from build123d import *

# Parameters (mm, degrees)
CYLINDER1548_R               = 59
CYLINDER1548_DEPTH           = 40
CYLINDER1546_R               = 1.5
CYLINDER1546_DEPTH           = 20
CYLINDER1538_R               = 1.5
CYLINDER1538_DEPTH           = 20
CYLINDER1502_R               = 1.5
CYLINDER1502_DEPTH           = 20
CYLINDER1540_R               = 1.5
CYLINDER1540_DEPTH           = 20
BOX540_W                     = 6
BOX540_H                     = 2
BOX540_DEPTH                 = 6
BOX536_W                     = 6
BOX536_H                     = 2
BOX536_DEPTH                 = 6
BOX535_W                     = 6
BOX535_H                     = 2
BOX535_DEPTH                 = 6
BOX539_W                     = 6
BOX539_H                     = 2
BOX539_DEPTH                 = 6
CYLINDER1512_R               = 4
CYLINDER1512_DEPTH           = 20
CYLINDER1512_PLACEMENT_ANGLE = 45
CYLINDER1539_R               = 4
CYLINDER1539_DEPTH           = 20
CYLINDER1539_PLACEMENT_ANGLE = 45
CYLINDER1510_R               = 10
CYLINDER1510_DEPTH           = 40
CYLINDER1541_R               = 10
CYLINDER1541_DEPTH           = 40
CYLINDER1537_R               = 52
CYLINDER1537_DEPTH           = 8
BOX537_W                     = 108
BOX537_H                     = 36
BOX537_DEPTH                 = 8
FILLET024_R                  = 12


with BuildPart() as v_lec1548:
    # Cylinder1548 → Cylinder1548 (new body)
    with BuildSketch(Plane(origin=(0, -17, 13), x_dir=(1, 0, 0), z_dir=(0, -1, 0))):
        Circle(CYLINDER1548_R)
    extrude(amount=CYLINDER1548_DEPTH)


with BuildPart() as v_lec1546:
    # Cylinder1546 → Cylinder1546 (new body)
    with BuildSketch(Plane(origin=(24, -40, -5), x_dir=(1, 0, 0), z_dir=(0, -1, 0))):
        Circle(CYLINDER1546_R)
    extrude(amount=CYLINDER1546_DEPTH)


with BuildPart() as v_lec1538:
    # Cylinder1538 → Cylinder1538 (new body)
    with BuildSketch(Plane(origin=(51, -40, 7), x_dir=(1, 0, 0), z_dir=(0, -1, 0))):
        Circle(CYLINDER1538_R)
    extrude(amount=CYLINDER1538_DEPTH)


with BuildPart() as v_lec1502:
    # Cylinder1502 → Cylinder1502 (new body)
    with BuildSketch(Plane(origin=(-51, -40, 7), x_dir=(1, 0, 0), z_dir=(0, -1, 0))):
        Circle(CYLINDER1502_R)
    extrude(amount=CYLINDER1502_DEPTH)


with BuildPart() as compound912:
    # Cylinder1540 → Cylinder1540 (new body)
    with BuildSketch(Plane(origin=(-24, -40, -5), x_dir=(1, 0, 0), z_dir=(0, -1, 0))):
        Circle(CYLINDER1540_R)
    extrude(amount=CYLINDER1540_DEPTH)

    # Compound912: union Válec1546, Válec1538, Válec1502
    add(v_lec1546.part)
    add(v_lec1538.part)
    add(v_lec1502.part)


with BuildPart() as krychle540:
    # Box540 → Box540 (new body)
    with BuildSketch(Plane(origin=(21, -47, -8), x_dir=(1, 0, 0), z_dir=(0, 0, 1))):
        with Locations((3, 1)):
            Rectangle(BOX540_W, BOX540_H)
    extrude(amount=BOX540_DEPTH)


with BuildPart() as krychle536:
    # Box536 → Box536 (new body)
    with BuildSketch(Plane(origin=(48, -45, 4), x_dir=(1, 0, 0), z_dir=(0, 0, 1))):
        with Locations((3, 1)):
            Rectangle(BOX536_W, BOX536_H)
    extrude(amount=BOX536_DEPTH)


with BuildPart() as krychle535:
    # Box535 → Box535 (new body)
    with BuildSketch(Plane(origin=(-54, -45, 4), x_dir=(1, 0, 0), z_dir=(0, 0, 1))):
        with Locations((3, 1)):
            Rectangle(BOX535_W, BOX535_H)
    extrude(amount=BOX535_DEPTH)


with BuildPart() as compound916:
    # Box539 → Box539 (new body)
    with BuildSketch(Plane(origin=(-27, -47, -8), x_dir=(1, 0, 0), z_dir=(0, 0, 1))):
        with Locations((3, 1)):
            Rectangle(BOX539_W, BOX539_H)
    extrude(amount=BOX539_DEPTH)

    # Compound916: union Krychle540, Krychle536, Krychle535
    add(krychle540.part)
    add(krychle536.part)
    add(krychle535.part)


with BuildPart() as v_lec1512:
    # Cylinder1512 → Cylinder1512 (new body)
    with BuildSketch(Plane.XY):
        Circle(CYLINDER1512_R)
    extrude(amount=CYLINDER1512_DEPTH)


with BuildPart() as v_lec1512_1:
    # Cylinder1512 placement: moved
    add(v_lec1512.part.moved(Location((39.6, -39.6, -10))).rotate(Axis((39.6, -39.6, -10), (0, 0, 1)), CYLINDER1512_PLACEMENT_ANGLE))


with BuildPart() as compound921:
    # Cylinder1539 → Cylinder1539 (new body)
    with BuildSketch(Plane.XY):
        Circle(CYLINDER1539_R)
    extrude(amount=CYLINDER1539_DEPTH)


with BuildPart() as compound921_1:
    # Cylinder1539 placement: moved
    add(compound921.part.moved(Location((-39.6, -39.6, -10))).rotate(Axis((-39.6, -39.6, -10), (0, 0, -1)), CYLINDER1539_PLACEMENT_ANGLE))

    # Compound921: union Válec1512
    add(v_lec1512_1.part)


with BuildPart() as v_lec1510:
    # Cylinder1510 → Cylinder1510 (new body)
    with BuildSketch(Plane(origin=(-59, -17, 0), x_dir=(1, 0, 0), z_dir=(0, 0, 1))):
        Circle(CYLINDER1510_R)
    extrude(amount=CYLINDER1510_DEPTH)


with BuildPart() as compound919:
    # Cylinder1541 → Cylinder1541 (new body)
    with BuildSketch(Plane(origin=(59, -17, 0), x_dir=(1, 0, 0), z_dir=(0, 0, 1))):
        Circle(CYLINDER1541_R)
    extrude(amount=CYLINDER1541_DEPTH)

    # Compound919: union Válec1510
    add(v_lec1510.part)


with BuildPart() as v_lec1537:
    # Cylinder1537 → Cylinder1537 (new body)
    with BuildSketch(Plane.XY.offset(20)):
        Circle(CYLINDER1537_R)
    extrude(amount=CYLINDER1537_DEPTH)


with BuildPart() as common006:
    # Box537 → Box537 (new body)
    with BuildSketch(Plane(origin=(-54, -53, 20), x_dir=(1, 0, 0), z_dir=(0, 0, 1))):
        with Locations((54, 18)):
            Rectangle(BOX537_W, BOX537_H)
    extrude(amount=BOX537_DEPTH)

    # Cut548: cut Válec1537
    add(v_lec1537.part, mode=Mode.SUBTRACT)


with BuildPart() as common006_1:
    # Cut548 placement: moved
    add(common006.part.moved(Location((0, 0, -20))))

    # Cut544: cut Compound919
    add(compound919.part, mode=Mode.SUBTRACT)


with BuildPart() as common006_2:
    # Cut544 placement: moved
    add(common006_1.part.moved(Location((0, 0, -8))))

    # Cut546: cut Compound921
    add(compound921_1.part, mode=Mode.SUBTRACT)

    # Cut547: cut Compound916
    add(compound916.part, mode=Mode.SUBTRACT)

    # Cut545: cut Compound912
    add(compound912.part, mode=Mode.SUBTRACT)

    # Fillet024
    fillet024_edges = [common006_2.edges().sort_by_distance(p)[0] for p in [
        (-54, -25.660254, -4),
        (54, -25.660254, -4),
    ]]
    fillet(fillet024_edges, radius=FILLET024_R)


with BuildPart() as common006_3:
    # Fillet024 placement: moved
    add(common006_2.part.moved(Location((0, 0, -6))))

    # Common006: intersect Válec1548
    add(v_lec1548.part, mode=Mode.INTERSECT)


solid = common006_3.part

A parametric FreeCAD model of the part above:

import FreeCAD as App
import Part
import Sketcher
from FreeCAD import Vector
Q = App.Units.Quantity


def edges_at(feature, points):
    """Names of the edges that pass closest to the given points."""
    edges = feature.Shape.Edges
    near = lambda p: min(range(len(edges)), key=lambda i: edges[i].distToShape(Part.Vertex(*p))[0])
    return sorted({f"Edge{near(p) + 1}" for p in points})

doc = App.newDocument("Part")
body = doc.addObject("PartDesign::Body", "Body")

sketch1 = body.newObject("Sketcher::SketchObject", "Sketch")
sketch1.AttachmentSupport = (doc.getObject("XZ_Plane"), [""])
sketch1.MapMode = "FlatFace"
sketch1.AttachmentOffset = App.Placement(Vector(0, 0, 17), App.Rotation())
sketch1.addGeometry(Part.Circle(Vector(0, 13, 0), Vector(0, 0, 1), 59), False)
sketch1.addConstraint([
    Sketcher.Constraint("PointOnObject", 0, 3, -2),
    Sketcher.Constraint("Diameter", 0, Q("118 mm")),
    Sketcher.Constraint("DistanceY", -1, 1, 0, 3, Q("13 mm")),
])
pad1 = body.newObject("PartDesign::Pad", "Pad")
pad1.Profile = sketch1
pad1.Length = 40
body2 = doc.addObject("PartDesign::Body", "Body001")

sketch2 = body2.newObject("Sketcher::SketchObject", "Sketch001")
sketch2.AttachmentSupport = (doc.getObject("XZ_Plane001"), [""])
sketch2.MapMode = "FlatFace"
sketch2.AttachmentOffset = App.Placement(Vector(0, 0, 40), App.Rotation())
sketch2.addGeometry(Part.Circle(Vector(24, -5, 0), Vector(0, 0, 1), 1.5), False)
sketch2.addConstraint([
    Sketcher.Constraint("Diameter", 0, Q("3 mm")),
    Sketcher.Constraint("DistanceX", -1, 1, 0, 3, Q("24 mm")),
    Sketcher.Constraint("DistanceY", 0, 3, -1, 1, Q("5 mm")),
])
pad2 = body2.newObject("PartDesign::Pad", "Pad001")
pad2.Profile = sketch2
pad2.Length = 20
body3 = doc.addObject("PartDesign::Body", "Body002")

sketch3 = body3.newObject("Sketcher::SketchObject", "Sketch002")
sketch3.AttachmentSupport = (doc.getObject("XZ_Plane002"), [""])
sketch3.MapMode = "FlatFace"
sketch3.AttachmentOffset = App.Placement(Vector(0, 0, 40), App.Rotation())
sketch3.addGeometry(Part.Circle(Vector(51, 7, 0), Vector(0, 0, 1), 1.5), False)
sketch3.addConstraint([
    Sketcher.Constraint("Diameter", 0, Q("3 mm")),
    Sketcher.Constraint("DistanceX", -1, 1, 0, 3, Q("51 mm")),
    Sketcher.Constraint("DistanceY", -1, 1, 0, 3, Q("7 mm")),
])
pad3 = body3.newObject("PartDesign::Pad", "Pad002")
pad3.Profile = sketch3
pad3.Length = 20
body4 = doc.addObject("PartDesign::Body", "Body003")

sketch4 = body4.newObject("Sketcher::SketchObject", "Sketch003")
sketch4.AttachmentSupport = (doc.getObject("XZ_Plane003"), [""])
sketch4.MapMode = "FlatFace"
sketch4.AttachmentOffset = App.Placement(Vector(0, 0, 40), App.Rotation())
sketch4.addGeometry(Part.Circle(Vector(-51, 7, 0), Vector(0, 0, 1), 1.5), False)
sketch4.addConstraint([
    Sketcher.Constraint("Diameter", 0, Q("3 mm")),
    Sketcher.Constraint("DistanceX", 0, 3, -1, 1, Q("51 mm")),
    Sketcher.Constraint("DistanceY", -1, 1, 0, 3, Q("7 mm")),
])
pad4 = body4.newObject("PartDesign::Pad", "Pad003")
pad4.Profile = sketch4
pad4.Length = 20
body5 = doc.addObject("PartDesign::Body", "Body004")
body5.AllowCompound = True

sketch5 = body5.newObject("Sketcher::SketchObject", "Sketch004")
sketch5.AttachmentSupport = (doc.getObject("XZ_Plane004"), [""])
sketch5.MapMode = "FlatFace"
sketch5.AttachmentOffset = App.Placement(Vector(0, 0, 40), App.Rotation())
sketch5.addGeometry(Part.Circle(Vector(-24, -5, 0), Vector(0, 0, 1), 1.5), False)
sketch5.addConstraint([
    Sketcher.Constraint("Diameter", 0, Q("3 mm")),
    Sketcher.Constraint("DistanceX", 0, 3, -1, 1, Q("24 mm")),
    Sketcher.Constraint("DistanceY", 0, 3, -1, 1, Q("5 mm")),
])
pad5 = body5.newObject("PartDesign::Pad", "Pad004")
pad5.Profile = sketch5
pad5.Length = 20
doc.recompute()

boolean = body5.newObject("PartDesign::Boolean", "Boolean")
boolean.Type = "Fuse"
boolean.addObjects([body2])
doc.recompute()

boolean2 = body5.newObject("PartDesign::Boolean", "Boolean001")
boolean2.Type = "Fuse"
boolean2.addObjects([body3])
doc.recompute()

boolean3 = body5.newObject("PartDesign::Boolean", "Boolean002")
boolean3.Type = "Fuse"
boolean3.addObjects([body4])
body6 = doc.addObject("PartDesign::Body", "Body005")

sketch6 = body6.newObject("Sketcher::SketchObject", "Sketch005")
sketch6.AttachmentSupport = (doc.getObject("XY_Plane005"), [""])
sketch6.MapMode = "FlatFace"
sketch6.AttachmentOffset = App.Placement(Vector(0, 0, -8), App.Rotation())
sketch6.addGeometry([
    Part.LineSegment(Vector(21, -45, 0), Vector(21, -47, 0)),
    Part.LineSegment(Vector(21, -47, 0), Vector(27, -47, 0)),
    Part.LineSegment(Vector(27, -47, 0), Vector(27, -45, 0)),
    Part.LineSegment(Vector(27, -45, 0), Vector(21, -45, 0)),
], False)
sketch6.addConstraint([
    Sketcher.Constraint("Coincident", 0, 2, 1, 1),
    Sketcher.Constraint("Coincident", 1, 2, 2, 1),
    Sketcher.Constraint("Coincident", 2, 2, 3, 1),
    Sketcher.Constraint("Coincident", 3, 2, 0, 1),
    Sketcher.Constraint("Vertical", 0),
    Sketcher.Constraint("Horizontal", 1),
    Sketcher.Constraint("Vertical", 2),
    Sketcher.Constraint("Horizontal", 3),
    Sketcher.Constraint("DistanceX", 1, 1, 1, 2, Q("6 mm")),
    Sketcher.Constraint("DistanceY", 0, 2, 0, 1, Q("2 mm")),
    Sketcher.Constraint("DistanceX", -1, 1, 0, 2, Q("21 mm")),
    Sketcher.Constraint("DistanceY", 0, 2, -1, 1, Q("47 mm")),
])
pad6 = body6.newObject("PartDesign::Pad", "Pad005")
pad6.Profile = sketch6
pad6.Length = 6
body7 = doc.addObject("PartDesign::Body", "Body006")

sketch7 = body7.newObject("Sketcher::SketchObject", "Sketch006")
sketch7.AttachmentSupport = (doc.getObject("XY_Plane006"), [""])
sketch7.MapMode = "FlatFace"
sketch7.AttachmentOffset = App.Placement(Vector(0, 0, 4), App.Rotation())
sketch7.addGeometry([
    Part.LineSegment(Vector(48, -43, 0), Vector(48, -45, 0)),
    Part.LineSegment(Vector(48, -45, 0), Vector(54, -45, 0)),
    Part.LineSegment(Vector(54, -45, 0), Vector(54, -43, 0)),
    Part.LineSegment(Vector(54, -43, 0), Vector(48, -43, 0)),
], False)
sketch7.addConstraint([
    Sketcher.Constraint("Coincident", 0, 2, 1, 1),
    Sketcher.Constraint("Coincident", 1, 2, 2, 1),
    Sketcher.Constraint("Coincident", 2, 2, 3, 1),
    Sketcher.Constraint("Coincident", 3, 2, 0, 1),
    Sketcher.Constraint("Vertical", 0),
    Sketcher.Constraint("Horizontal", 1),
    Sketcher.Constraint("Vertical", 2),
    Sketcher.Constraint("Horizontal", 3),
    Sketcher.Constraint("DistanceX", 1, 1, 1, 2, Q("6 mm")),
    Sketcher.Constraint("DistanceY", 0, 2, 0, 1, Q("2 mm")),
    Sketcher.Constraint("DistanceX", -1, 1, 0, 2, Q("48 mm")),
    Sketcher.Constraint("DistanceY", 0, 2, -1, 1, Q("45 mm")),
])
pad7 = body7.newObject("PartDesign::Pad", "Pad006")
pad7.Profile = sketch7
pad7.Length = 6
body8 = doc.addObject("PartDesign::Body", "Body007")

sketch8 = body8.newObject("Sketcher::SketchObject", "Sketch007")
sketch8.AttachmentSupport = (doc.getObject("XY_Plane007"), [""])
sketch8.MapMode = "FlatFace"
sketch8.AttachmentOffset = App.Placement(Vector(0, 0, 4), App.Rotation())
sketch8.addGeometry([
    Part.LineSegment(Vector(-54, -43, 0), Vector(-54, -45, 0)),
    Part.LineSegment(Vector(-54, -45, 0), Vector(-48, -45, 0)),
    Part.LineSegment(Vector(-48, -45, 0), Vector(-48, -43, 0)),
    Part.LineSegment(Vector(-48, -43, 0), Vector(-54, -43, 0)),
], False)
sketch8.addConstraint([
    Sketcher.Constraint("Coincident", 0, 2, 1, 1),
    Sketcher.Constraint("Coincident", 1, 2, 2, 1),
    Sketcher.Constraint("Coincident", 2, 2, 3, 1),
    Sketcher.Constraint("Coincident", 3, 2, 0, 1),
    Sketcher.Constraint("Vertical", 0),
    Sketcher.Constraint("Horizontal", 1),
    Sketcher.Constraint("Vertical", 2),
    Sketcher.Constraint("Horizontal", 3),
    Sketcher.Constraint("DistanceX", 1, 1, 1, 2, Q("6 mm")),
    Sketcher.Constraint("DistanceY", 0, 2, 0, 1, Q("2 mm")),
    Sketcher.Constraint("DistanceX", 0, 2, -1, 1, Q("54 mm")),
    Sketcher.Constraint("DistanceY", 0, 2, -1, 1, Q("45 mm")),
])
pad8 = body8.newObject("PartDesign::Pad", "Pad007")
pad8.Profile = sketch8
pad8.Length = 6
body9 = doc.addObject("PartDesign::Body", "Body008")
body9.AllowCompound = True

sketch9 = body9.newObject("Sketcher::SketchObject", "Sketch008")
sketch9.AttachmentSupport = (doc.getObject("XY_Plane008"), [""])
sketch9.MapMode = "FlatFace"
sketch9.AttachmentOffset = App.Placement(Vector(0, 0, -8), App.Rotation())
sketch9.addGeometry([
    Part.LineSegment(Vector(-27, -45, 0), Vector(-27, -47, 0)),
    Part.LineSegment(Vector(-27, -47, 0), Vector(-21, -47, 0)),
    Part.LineSegment(Vector(-21, -47, 0), Vector(-21, -45, 0)),
    Part.LineSegment(Vector(-21, -45, 0), Vector(-27, -45, 0)),
], False)
sketch9.addConstraint([
    Sketcher.Constraint("Coincident", 0, 2, 1, 1),
    Sketcher.Constraint("Coincident", 1, 2, 2, 1),
    Sketcher.Constraint("Coincident", 2, 2, 3, 1),
    Sketcher.Constraint("Coincident", 3, 2, 0, 1),
    Sketcher.Constraint("Vertical", 0),
    Sketcher.Constraint("Horizontal", 1),
    Sketcher.Constraint("Vertical", 2),
    Sketcher.Constraint("Horizontal", 3),
    Sketcher.Constraint("DistanceX", 1, 1, 1, 2, Q("6 mm")),
    Sketcher.Constraint("DistanceY", 0, 2, 0, 1, Q("2 mm")),
    Sketcher.Constraint("DistanceX", 0, 2, -1, 1, Q("27 mm")),
    Sketcher.Constraint("DistanceY", 0, 2, -1, 1, Q("47 mm")),
])
pad9 = body9.newObject("PartDesign::Pad", "Pad008")
pad9.Profile = sketch9
pad9.Length = 6
doc.recompute()

boolean4 = body9.newObject("PartDesign::Boolean", "Boolean003")
boolean4.Type = "Fuse"
boolean4.addObjects([body6])
doc.recompute()

boolean5 = body9.newObject("PartDesign::Boolean", "Boolean004")
boolean5.Type = "Fuse"
boolean5.addObjects([body7])
doc.recompute()

boolean6 = body9.newObject("PartDesign::Boolean", "Boolean005")
boolean6.Type = "Fuse"
boolean6.addObjects([body8])
body10 = doc.addObject("PartDesign::Body", "Body009")

sketch10 = body10.newObject("Sketcher::SketchObject", "Sketch009")
sketch10.AttachmentSupport = (doc.getObject("XY_Plane009"), [""])
sketch10.MapMode = "FlatFace"
sketch10.addGeometry(Part.Circle(Vector(0, 0, 0), Vector(0, 0, 1), 4), False)
sketch10.addConstraint([
    Sketcher.Constraint("Coincident", 0, 3, -1, 1),
    Sketcher.Constraint("Diameter", 0, Q("8 mm")),
])
pad10 = body10.newObject("PartDesign::Pad", "Pad009")
pad10.Profile = sketch10
pad10.Length = 20
body11 = doc.addObject("PartDesign::Body", "Body010")
doc.recompute()

body10.Placement = App.Placement(Vector(39.6, -39.6, -10), App.Rotation(Vector(0, 0, 1), 45))
boolean7 = body11.newObject("PartDesign::Boolean", "Boolean006")
boolean7.Type = "Fuse"
boolean7.addObjects([body10])
body12 = doc.addObject("PartDesign::Body", "Body011")

sketch11 = body12.newObject("Sketcher::SketchObject", "Sketch010")
sketch11.AttachmentSupport = (doc.getObject("XY_Plane011"), [""])
sketch11.MapMode = "FlatFace"
sketch11.addGeometry(Part.Circle(Vector(0, 0, 0), Vector(0, 0, 1), 4), False)
sketch11.addConstraint([
    Sketcher.Constraint("Coincident", 0, 3, -1, 1),
    Sketcher.Constraint("Diameter", 0, Q("8 mm")),
])
pad11 = body12.newObject("PartDesign::Pad", "Pad010")
pad11.Profile = sketch11
pad11.Length = 20
body13 = doc.addObject("PartDesign::Body", "Body012")
body13.AllowCompound = True
doc.recompute()

body12.Placement = App.Placement(Vector(-39.6, -39.6, -10), App.Rotation(Vector(0, 0, -1), 45))
boolean8 = body13.newObject("PartDesign::Boolean", "Boolean007")
boolean8.Type = "Fuse"
boolean8.addObjects([body12])
doc.recompute()

boolean9 = body13.newObject("PartDesign::Boolean", "Boolean008")
boolean9.Type = "Fuse"
boolean9.addObjects([body11])
body14 = doc.addObject("PartDesign::Body", "Body013")

sketch12 = body14.newObject("Sketcher::SketchObject", "Sketch011")
sketch12.AttachmentSupport = (doc.getObject("XY_Plane013"), [""])
sketch12.MapMode = "FlatFace"
sketch12.addGeometry(Part.Circle(Vector(-59, -17, 0), Vector(0, 0, 1), 10), False)
sketch12.addConstraint([
    Sketcher.Constraint("Diameter", 0, Q("20 mm")),
    Sketcher.Constraint("DistanceX", 0, 3, -1, 1, Q("59 mm")),
    Sketcher.Constraint("DistanceY", 0, 3, -1, 1, Q("17 mm")),
])
pad12 = body14.newObject("PartDesign::Pad", "Pad011")
pad12.Profile = sketch12
pad12.Length = 40
body15 = doc.addObject("PartDesign::Body", "Body014")
body15.AllowCompound = True

sketch13 = body15.newObject("Sketcher::SketchObject", "Sketch012")
sketch13.AttachmentSupport = (doc.getObject("XY_Plane014"), [""])
sketch13.MapMode = "FlatFace"
sketch13.addGeometry(Part.Circle(Vector(59, -17, 0), Vector(0, 0, 1), 10), False)
sketch13.addConstraint([
    Sketcher.Constraint("Diameter", 0, Q("20 mm")),
    Sketcher.Constraint("DistanceX", -1, 1, 0, 3, Q("59 mm")),
    Sketcher.Constraint("DistanceY", 0, 3, -1, 1, Q("17 mm")),
])
pad13 = body15.newObject("PartDesign::Pad", "Pad012")
pad13.Profile = sketch13
pad13.Length = 40
doc.recompute()

boolean10 = body15.newObject("PartDesign::Boolean", "Boolean009")
boolean10.Type = "Fuse"
boolean10.addObjects([body14])
body16 = doc.addObject("PartDesign::Body", "Body015")

sketch14 = body16.newObject("Sketcher::SketchObject", "Sketch013")
sketch14.AttachmentSupport = (doc.getObject("XY_Plane015"), [""])
sketch14.MapMode = "FlatFace"
sketch14.AttachmentOffset = App.Placement(Vector(0, 0, 20), App.Rotation())
sketch14.addGeometry(Part.Circle(Vector(0, 0, 0), Vector(0, 0, 1), 52), False)
sketch14.addConstraint([
    Sketcher.Constraint("Coincident", 0, 3, -1, 1),
    Sketcher.Constraint("Diameter", 0, Q("104 mm")),
])
pad14 = body16.newObject("PartDesign::Pad", "Pad013")
pad14.Profile = sketch14
pad14.Length = 8
body17 = doc.addObject("PartDesign::Body", "Body016")

sketch15 = body17.newObject("Sketcher::SketchObject", "Sketch014")
sketch15.AttachmentSupport = (doc.getObject("XY_Plane016"), [""])
sketch15.MapMode = "FlatFace"
sketch15.AttachmentOffset = App.Placement(Vector(0, 0, 20), App.Rotation())
sketch15.addGeometry([
    Part.LineSegment(Vector(-54, -17, 0), Vector(-54, -53, 0)),
    Part.LineSegment(Vector(-54, -53, 0), Vector(54, -53, 0)),
    Part.LineSegment(Vector(54, -53, 0), Vector(54, -17, 0)),
    Part.LineSegment(Vector(54, -17, 0), Vector(-54, -17, 0)),
], False)
sketch15.addConstraint([
    Sketcher.Constraint("Coincident", 0, 2, 1, 1),
    Sketcher.Constraint("Coincident", 1, 2, 2, 1),
    Sketcher.Constraint("Coincident", 2, 2, 3, 1),
    Sketcher.Constraint("Coincident", 3, 2, 0, 1),
    Sketcher.Constraint("Vertical", 0),
    Sketcher.Constraint("Horizontal", 1),
    Sketcher.Constraint("Vertical", 2),
    Sketcher.Constraint("Horizontal", 3),
    Sketcher.Constraint("DistanceX", 1, 1, 1, 2, Q("108 mm")),
    Sketcher.Constraint("DistanceY", 0, 2, 0, 1, Q("36 mm")),
    Sketcher.Constraint("DistanceX", 0, 2, -1, 1, Q("54 mm")),
    Sketcher.Constraint("DistanceY", 0, 2, -1, 1, Q("53 mm")),
])
pad15 = body17.newObject("PartDesign::Pad", "Pad014")
pad15.Profile = sketch15
pad15.Length = 8
doc.recompute()

boolean11 = body17.newObject("PartDesign::Boolean", "Boolean010")
boolean11.Type = "Cut"
boolean11.addObjects([body16])
body18 = doc.addObject("PartDesign::Body", "Body017")
doc.recompute()

body17.Placement = App.Placement(Vector(0, 0, -20), App.Rotation(Vector(0, 0, 1), 0))
boolean12 = body18.newObject("PartDesign::Boolean", "Boolean011")
boolean12.Type = "Fuse"
boolean12.addObjects([body17])
doc.recompute()

boolean13 = body18.newObject("PartDesign::Boolean", "Boolean012")
boolean13.Type = "Cut"
boolean13.addObjects([body15])
body19 = doc.addObject("PartDesign::Body", "Body018")
doc.recompute()

body18.Placement = App.Placement(Vector(0, 0, -8), App.Rotation(Vector(0, 0, 1), 0))
boolean14 = body19.newObject("PartDesign::Boolean", "Boolean013")
boolean14.Type = "Fuse"
boolean14.addObjects([body18])
doc.recompute()

boolean15 = body19.newObject("PartDesign::Boolean", "Boolean014")
boolean15.Type = "Cut"
boolean15.addObjects([body13])
doc.recompute()

boolean16 = body19.newObject("PartDesign::Boolean", "Boolean015")
boolean16.Type = "Cut"
boolean16.addObjects([body9])
doc.recompute()

boolean17 = body19.newObject("PartDesign::Boolean", "Boolean016")
boolean17.Type = "Cut"
boolean17.addObjects([body5])
doc.recompute()

fillet = body19.newObject("PartDesign::Fillet", "Fillet")
fillet.Base = (boolean17, edges_at(boolean17, [(-54, -25.66, -4), (54, -25.66, -4)]))
fillet.Radius = 12
body20 = doc.addObject("PartDesign::Body", "Body019")
doc.recompute()

body19.Placement = App.Placement(Vector(0, 0, -6), App.Rotation(Vector(0, 0, 1), 0))
boolean18 = body20.newObject("PartDesign::Boolean", "Boolean017")
boolean18.Type = "Fuse"
boolean18.addObjects([body19])
doc.recompute()

boolean19 = body20.newObject("PartDesign::Boolean", "Boolean018")
boolean19.Type = "Common"
boolean19.addObjects([body])

doc.recompute()
